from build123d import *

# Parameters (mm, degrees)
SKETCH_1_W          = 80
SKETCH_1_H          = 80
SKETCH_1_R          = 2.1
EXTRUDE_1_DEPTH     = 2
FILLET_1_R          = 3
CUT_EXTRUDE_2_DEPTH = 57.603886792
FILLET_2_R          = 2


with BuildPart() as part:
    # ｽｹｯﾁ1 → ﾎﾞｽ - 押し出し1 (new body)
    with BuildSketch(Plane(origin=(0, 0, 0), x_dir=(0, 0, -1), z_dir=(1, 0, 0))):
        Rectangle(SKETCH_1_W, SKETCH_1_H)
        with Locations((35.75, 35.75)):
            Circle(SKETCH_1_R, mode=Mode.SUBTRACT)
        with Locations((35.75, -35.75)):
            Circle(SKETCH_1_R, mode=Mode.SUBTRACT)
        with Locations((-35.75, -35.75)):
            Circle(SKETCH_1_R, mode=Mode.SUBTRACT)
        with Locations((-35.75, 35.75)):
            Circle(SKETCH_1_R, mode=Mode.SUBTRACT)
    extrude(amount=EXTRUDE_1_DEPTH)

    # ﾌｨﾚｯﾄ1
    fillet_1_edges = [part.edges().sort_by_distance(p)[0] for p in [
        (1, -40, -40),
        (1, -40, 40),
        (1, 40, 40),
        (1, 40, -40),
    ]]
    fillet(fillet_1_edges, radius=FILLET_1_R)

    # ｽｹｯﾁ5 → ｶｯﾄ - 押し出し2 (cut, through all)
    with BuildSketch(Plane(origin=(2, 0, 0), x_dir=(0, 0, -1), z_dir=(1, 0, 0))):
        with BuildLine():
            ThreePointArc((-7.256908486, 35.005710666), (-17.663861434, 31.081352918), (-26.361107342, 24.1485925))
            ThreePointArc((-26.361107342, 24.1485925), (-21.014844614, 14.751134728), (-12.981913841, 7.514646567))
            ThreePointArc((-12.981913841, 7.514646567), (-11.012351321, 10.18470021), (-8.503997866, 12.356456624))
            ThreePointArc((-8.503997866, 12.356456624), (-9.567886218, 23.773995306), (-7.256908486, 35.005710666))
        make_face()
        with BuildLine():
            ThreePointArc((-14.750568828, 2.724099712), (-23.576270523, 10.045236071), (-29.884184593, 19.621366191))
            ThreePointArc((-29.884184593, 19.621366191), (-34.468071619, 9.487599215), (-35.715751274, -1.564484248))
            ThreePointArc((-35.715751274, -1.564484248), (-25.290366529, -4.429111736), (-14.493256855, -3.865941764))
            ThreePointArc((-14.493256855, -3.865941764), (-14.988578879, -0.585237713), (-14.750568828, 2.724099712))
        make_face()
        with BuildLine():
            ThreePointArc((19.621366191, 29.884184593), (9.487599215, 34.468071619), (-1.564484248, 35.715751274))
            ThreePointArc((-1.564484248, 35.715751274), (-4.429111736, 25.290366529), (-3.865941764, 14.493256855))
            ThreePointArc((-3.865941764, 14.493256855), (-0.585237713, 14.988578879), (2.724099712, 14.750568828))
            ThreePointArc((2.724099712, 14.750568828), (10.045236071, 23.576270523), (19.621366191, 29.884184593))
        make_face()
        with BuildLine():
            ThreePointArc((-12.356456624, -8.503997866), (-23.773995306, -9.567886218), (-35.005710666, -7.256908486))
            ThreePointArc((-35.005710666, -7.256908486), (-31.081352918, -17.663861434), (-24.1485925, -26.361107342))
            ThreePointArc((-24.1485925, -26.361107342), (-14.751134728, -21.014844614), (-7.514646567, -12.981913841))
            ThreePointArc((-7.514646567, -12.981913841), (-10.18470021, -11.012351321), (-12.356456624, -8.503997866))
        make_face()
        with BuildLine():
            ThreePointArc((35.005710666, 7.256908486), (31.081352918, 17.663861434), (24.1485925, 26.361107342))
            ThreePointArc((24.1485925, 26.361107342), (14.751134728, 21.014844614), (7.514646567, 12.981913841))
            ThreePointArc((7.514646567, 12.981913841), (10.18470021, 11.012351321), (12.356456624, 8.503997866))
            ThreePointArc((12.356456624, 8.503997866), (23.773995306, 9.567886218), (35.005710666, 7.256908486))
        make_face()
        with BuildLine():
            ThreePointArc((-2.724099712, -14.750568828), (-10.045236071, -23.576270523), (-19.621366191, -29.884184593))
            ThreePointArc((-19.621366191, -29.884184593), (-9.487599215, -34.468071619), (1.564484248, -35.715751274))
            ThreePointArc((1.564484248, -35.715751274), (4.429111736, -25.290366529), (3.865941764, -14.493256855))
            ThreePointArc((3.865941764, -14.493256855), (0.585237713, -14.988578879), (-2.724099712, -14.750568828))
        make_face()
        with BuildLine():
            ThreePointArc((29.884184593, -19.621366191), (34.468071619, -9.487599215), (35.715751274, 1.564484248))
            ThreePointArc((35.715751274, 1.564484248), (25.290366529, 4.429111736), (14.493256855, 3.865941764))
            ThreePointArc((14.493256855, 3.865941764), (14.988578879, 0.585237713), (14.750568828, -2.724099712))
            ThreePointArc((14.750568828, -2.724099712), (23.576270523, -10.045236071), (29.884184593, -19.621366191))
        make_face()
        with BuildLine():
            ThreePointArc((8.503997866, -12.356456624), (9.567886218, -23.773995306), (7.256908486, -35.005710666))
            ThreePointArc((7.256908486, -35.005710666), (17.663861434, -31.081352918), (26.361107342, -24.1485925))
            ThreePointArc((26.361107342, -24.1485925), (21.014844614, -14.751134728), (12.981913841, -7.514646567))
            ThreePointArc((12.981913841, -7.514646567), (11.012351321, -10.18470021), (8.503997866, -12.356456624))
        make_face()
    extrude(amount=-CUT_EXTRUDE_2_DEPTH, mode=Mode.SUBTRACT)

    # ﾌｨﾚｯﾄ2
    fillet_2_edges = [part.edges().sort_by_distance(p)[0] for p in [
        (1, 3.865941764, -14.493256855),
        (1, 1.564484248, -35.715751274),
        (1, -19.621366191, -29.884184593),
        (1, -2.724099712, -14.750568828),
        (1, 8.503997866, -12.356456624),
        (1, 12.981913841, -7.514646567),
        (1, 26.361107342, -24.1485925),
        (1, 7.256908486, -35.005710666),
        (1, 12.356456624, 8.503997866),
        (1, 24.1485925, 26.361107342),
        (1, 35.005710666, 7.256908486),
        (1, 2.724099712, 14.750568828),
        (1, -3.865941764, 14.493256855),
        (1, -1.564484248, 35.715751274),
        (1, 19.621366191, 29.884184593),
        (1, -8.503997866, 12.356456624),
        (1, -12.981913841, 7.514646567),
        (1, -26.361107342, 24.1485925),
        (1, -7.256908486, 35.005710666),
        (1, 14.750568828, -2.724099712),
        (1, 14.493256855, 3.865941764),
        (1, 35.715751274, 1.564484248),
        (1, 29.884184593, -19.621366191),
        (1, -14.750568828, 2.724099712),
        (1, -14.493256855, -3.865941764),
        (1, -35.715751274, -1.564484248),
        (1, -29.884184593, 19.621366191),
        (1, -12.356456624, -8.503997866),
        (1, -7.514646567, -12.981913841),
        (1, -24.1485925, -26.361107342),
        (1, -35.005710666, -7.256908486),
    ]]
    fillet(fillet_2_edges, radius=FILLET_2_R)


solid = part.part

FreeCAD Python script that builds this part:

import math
import FreeCAD as App
import Part
import Sketcher
Q = App.Units.Quantity


def edges_at(feature, points):
    """Names of the edges that pass closest to the given points."""
    edges = feature.Shape.Edges
    near = lambda p: min(range(len(edges)), key=lambda i: edges[i].distToShape(Part.Vertex(*p))[0])
    return sorted({f"Edge{near(p) + 1}" for p in points})

doc = App.newDocument("Part")
body = doc.addObject("PartDesign::Body", "Body")

sketch1 = body.newObject("Sketcher::SketchObject", "Sketch")
sketch1.AttachmentSupport = (doc.getObject("YZ_Plane"), [""])
sketch1.MapMode = "FlatFace"
sketch1.addGeometry([
    Part.LineSegment(App.Vector(40, 40, 0), App.Vector(-40, 40, 0)),
    Part.LineSegment(App.Vector(-40, 40, 0), App.Vector(-40, -40, 0)),
    Part.LineSegment(App.Vector(-40, -40, 0), App.Vector(40, -40, 0)),
    Part.LineSegment(App.Vector(40, -40, 0), App.Vector(40, 40, 0)),
    Part.Circle(App.Vector(-35.75, 35.75, 0), App.Vector(0, 0, 1), 2.1),
    Part.Circle(App.Vector(-35.75, -35.75, 0), App.Vector(0, 0, 1), 2.1),
    Part.Circle(App.Vector(35.75, 35.75, 0), App.Vector(0, 0, 1), 2.1),
    Part.Circle(App.Vector(35.75, -35.75, 0), App.Vector(0, 0, 1), 2.1),
], False)
sketch1.addConstraint([
    Sketcher.Constraint("Coincident", 0, 2, 1, 1),
    Sketcher.Constraint("Coincident", 1, 2, 2, 1),
    Sketcher.Constraint("Coincident", 2, 2, 3, 1),
    Sketcher.Constraint("Coincident", 3, 2, 0, 1),
    Sketcher.Constraint("Horizontal", 0),
    Sketcher.Constraint("Vertical", 1),
    Sketcher.Constraint("Horizontal", 2),
    Sketcher.Constraint("Vertical", 3),
    Sketcher.Constraint("Equal", 4, 5),
    Sketcher.Constraint("Equal", 5, 6),
    Sketcher.Constraint("Equal", 6, 7),
    Sketcher.Constraint("Symmetric", 5, 3, 6, 3, -1, 1),
    Sketcher.Constraint("Symmetric", 4, 3, 7, 3, -1, 1),
    Sketcher.Constraint("Symmetric", 0, 2, 2, 2, -1, 1),
    Sketcher.Constraint("Symmetric", 4, 3, 6, 3, -2),
    Sketcher.Constraint("Equal", 2, 1),
    Sketcher.Constraint("Diameter", 4, Q("4.2 mm")),
    Sketcher.Constraint("DistanceX", 0, 2, 0, 1, Q("80 mm")),
    Sketcher.Constraint("DistanceY", 5, 3, 4, 3, Q("71.5 mm")),
    Sketcher.Constraint("DistanceX", 4, 3, 6, 3, Q("71.5 mm")),
])
pad1 = body.newObject("PartDesign::Pad", "Pad")
pad1.Profile = sketch1
pad1.Length = 2
doc.recompute()

fillet = body.newObject("PartDesign::Fillet", "Fillet")
fillet.Base = (pad1, edges_at(pad1, [
    (1, -40, -40),
    (1, -40, 40),
    (1, 40, 40),
    (1, 40, -40),
]))
fillet.Radius = 3

sketch2 = body.newObject("Sketcher::SketchObject", "Sketch001")
sketch2.AttachmentSupport = (doc.getObject("YZ_Plane"), [""])
sketch2.MapMode = "FlatFace"
sketch2.AttachmentOffset = App.Placement(App.Vector(0, 0, 2), App.Rotation())
sketch2.addGeometry([
    Part.ArcOfCircle(Part.Circle(App.Vector(0, 0, 0), App.Vector(0, 0, 1), 35.75), math.radians(11.711887), math.radians(47.508167)),
    Part.ArcOfCircle(Part.Circle(App.Vector(36, -5.403226, 0), App.Vector(0, 0, 1), 33.903226), math.radians(110.460758), math.radians(147.160819)),
    Part.ArcOfCircle(Part.Circle(App.Vector(0, 0, 0), App.Vector(0, 0, 1), 15), math.radians(34.536644), math.radians(59.935378)),
    Part.ArcOfCircle(Part.Circle(App.Vector(21.635187, -29.276502, 0), App.Vector(0, 0, 1), 38.903226), math.radians(69.898348), math.radians(103.798497)),
    Part.ArcOfCircle(Part.Circle(App.Vector(36, -5.403226, 0), App.Vector(0, 0, 1), 38.903226), math.radians(114.898348), math.radians(148.798497)),
    Part.ArcOfCircle(Part.Circle(App.Vector(0, 0, 0), App.Vector(0, 0, 1), 35.75), math.radians(56.711887), math.radians(92.508167)),
    Part.ArcOfCircle(Part.Circle(App.Vector(29.276502, 21.635187, 0), App.Vector(0, 0, 1), 33.903226), math.radians(155.460758), math.radians(192.160819)),
    Part.ArcOfCircle(Part.Circle(App.Vector(0, 0, 0), App.Vector(0, 0, 1), 15), math.radians(79.536644), math.radians(104.935378)),
    Part.ArcOfCircle(Part.Circle(App.Vector(0, 0, 0), App.Vector(0, 0, 1), 35.75), math.radians(-33.288113), math.radians(2.508167)),
    Part.ArcOfCircle(Part.Circle(App.Vector(21.635187, -29.276502, 0), App.Vector(0, 0, 1), 33.903226), math.radians(65.460758), math.radians(102.160819)),
    Part.ArcOfCircle(Part.Circle(App.Vector(0, 0, 0), App.Vector(0, 0, 1), 15), math.radians(-10.463356), math.radians(14.935378)),
    Part.ArcOfCircle(Part.Circle(App.Vector(-5.403226, -36, 0), App.Vector(0, 0, 1), 38.903226), math.radians(24.898348), math.radians(58.798497)),
    Part.ArcOfCircle(Part.Circle(App.Vector(29.276502, 21.635187, 0), App.Vector(0, 0, 1), 38.903226), math.radians(159.898348), math.radians(193.798497)),
    Part.ArcOfCircle(Part.Circle(App.Vector(0, 0, 0), App.Vector(0, 0, 1), 35.75), math.radians(101.711887), math.radians(137.508167)),
    Part.ArcOfCircle(Part.Circle(App.Vector(5.403226, 36, 0), App.Vector(0, 0, 1), 33.903226), math.radians(-159.539242), math.radians(-122.839181)),
    Part.ArcOfCircle(Part.Circle(App.Vector(0, 0, 0), App.Vector(0, 0, 1), 15), math.radians(124.536644), math.radians(149.935378)),
    Part.ArcOfCircle(Part.Circle(App.Vector(0, 0, 0), App.Vector(0, 0, 1), 35.75), math.radians(-78.288113), math.radians(-42.491833)),
    Part.ArcOfCircle(Part.Circle(App.Vector(-5.403226, -36, 0), App.Vector(0, 0, 1), 33.903226), math.radians(20.460758), math.radians(57.160819)),
    Part.ArcOfCircle(Part.Circle(App.Vector(0, 0, 0), App.Vector(0, 0, 1), 15), math.radians(-55.463356), math.radians(-30.064622)),
    Part.ArcOfCircle(Part.Circle(App.Vector(-29.276502, -21.635187, 0), App.Vector(0, 0, 1), 38.903226), math.radians(-20.101652), math.radians(13.798497)),
    Part.ArcOfCircle(Part.Circle(App.Vector(5.403226, 36, 0), App.Vector(0, 0, 1), 38.903226), math.radians(-155.101652), math.radians(-121.201503)),
    Part.ArcOfCircle(Part.Circle(App.Vector(0, 0, 0), App.Vector(0, 0, 1), 35.75), math.radians(146.711887), math.radians(182.508167)),
    Part.ArcOfCircle(Part.Circle(App.Vector(-21.635187, 29.276502, 0), App.Vector(0, 0, 1), 33.903226), math.radians(-114.539242), math.radians(-77.839181)),
    Part.ArcOfCircle(Part.Circle(App.Vector(0, 0, 0), App.Vector(0, 0, 1), 15), math.radians(169.536644), math.radians(194.935378)),
    Part.ArcOfCircle(Part.Circle(App.Vector(0, 0, 0), App.Vector(0, 0, 1), 35.75), math.radians(-123.288113), math.radians(-87.491833)),
    Part.ArcOfCircle(Part.Circle(App.Vector(-29.276502, -21.635187, 0), App.Vector(0, 0, 1), 33.903226), math.radians(-24.539242), math.radians(12.160819)),
    Part.ArcOfCircle(Part.Circle(App.Vector(0, 0, 0), App.Vector(0, 0, 1), 15), math.radians(-100.463356), math.radians(-75.064622)),
    Part.ArcOfCircle(Part.Circle(App.Vector(-36, 5.403226, 0), App.Vector(0, 0, 1), 38.903226), math.radians(-65.101652), math.radians(-31.201503)),
    Part.ArcOfCircle(Part.Circle(App.Vector(-21.635187, 29.276502, 0), App.Vector(0, 0, 1), 38.903226), math.radians(-110.101652), math.radians(-76.201503)),
    Part.ArcOfCircle(Part.Circle(App.Vector(0, 0, 0), App.Vector(0, 0, 1), 35.75), math.radians(-168.288113), math.radians(-132.491833)),
    Part.ArcOfCircle(Part.Circle(App.Vector(-36, 5.403226, 0), App.Vector(0, 0, 1), 33.903226), math.radians(-69.539242), math.radians(-32.839181)),
    Part.ArcOfCircle(Part.Circle(App.Vector(0, 0, 0), App.Vector(0, 0, 1), 15), math.radians(-145.463356), math.radians(-120.064622)),
], False)
sketch2.addConstraint([
    Sketcher.Constraint("Coincident", 0, 2, 1, 1),
    Sketcher.Constraint("Coincident", 1, 2, 2, 2),
    Sketcher.Constraint("Coincident", 2, 1, 3, 2),
    Sketcher.Constraint("Coincident", 3, 1, 0, 1),
    Sketcher.Constraint("Coincident", 4, 1, 5, 1),
    Sketcher.Constraint("Coincident", 5, 2, 6, 1),
    Sketcher.Constraint("Coincident", 6, 2, 7, 2),
    Sketcher.Constraint("Coincident", 7, 1, 4, 2),
    Sketcher.Constraint("Coincident", 8, 2, 9, 1),
    Sketcher.Constraint("Coincident", 9, 2, 10, 2),
    Sketcher.Constraint("Coincident", 10, 1, 11, 2),
    Sketcher.Constraint("Coincident", 11, 1, 8, 1),
    Sketcher.Constraint("Coincident", 12, 1, 13, 1),
    Sketcher.Constraint("Coincident", 13, 2, 14, 1),
    Sketcher.Constraint("Coincident", 14, 2, 15, 2),
    Sketcher.Constraint("Coincident", 15, 1, 12, 2),
    Sketcher.Constraint("Coincident", 16, 2, 17, 1),
    Sketcher.Constraint("Coincident", 17, 2, 18, 2),
    Sketcher.Constraint("Coincident", 18, 1, 19, 2),
    Sketcher.Constraint("Coincident", 19, 1, 16, 1),
    Sketcher.Constraint("Coincident", 20, 1, 21, 1),
    Sketcher.Constraint("Coincident", 21, 2, 22, 1),
    Sketcher.Constraint("Coincident", 22, 2, 23, 2),
    Sketcher.Constraint("Coincident", 23, 1, 20, 2),
    Sketcher.Constraint("Coincident", 24, 2, 25, 1),
    Sketcher.Constraint("Coincident", 25, 2, 26, 2),
    Sketcher.Constraint("Coincident", 26, 1, 27, 2),
    Sketcher.Constraint("Coincident", 27, 1, 24, 1),
    Sketcher.Constraint("Coincident", 28, 1, 29, 1),
    Sketcher.Constraint("Coincident", 29, 2, 30, 1),
    Sketcher.Constraint("Coincident", 30, 2, 31, 2),
    Sketcher.Constraint("Coincident", 31, 1, 28, 2),
    Sketcher.Constraint("Coincident", 0, 3, -1, 1),
    Sketcher.Constraint("Coincident", 2, 3, -1, 1),
    Sketcher.Constraint("Coincident", 5, 3, -1, 1),
    Sketcher.Constraint("Coincident", 7, 3, -1, 1),
    Sketcher.Constraint("Coincident", 8, 3, -1, 1),
    Sketcher.Constraint("Coincident", 10, 3, -1, 1),
    Sketcher.Constraint("Coincident", 13, 3, -1, 1),
    Sketcher.Constraint("Coincident", 15, 3, -1, 1),
    Sketcher.Constraint("Coincident", 16, 3, -1, 1),
    Sketcher.Constraint("Coincident", 18, 3, -1, 1),
    Sketcher.Constraint("Coincident", 21, 3, -1, 1),
    Sketcher.Constraint("Coincident", 23, 3, -1, 1),
    Sketcher.Constraint("Coincident", 24, 3, -1, 1),
    Sketcher.Constraint("Coincident", 26, 3, -1, 1),
    Sketcher.Constraint("Coincident", 29, 3, -1, 1),
    Sketcher.Constraint("Coincident", 31, 3, -1, 1),
    Sketcher.Constraint("Coincident", 4, 3, 1, 3),
    Sketcher.Constraint("Coincident", 9, 3, 3, 3),
    Sketcher.Constraint("Coincident", 12, 3, 6, 3),
    Sketcher.Constraint("Coincident", 17, 3, 11, 3),
    Sketcher.Constraint("Coincident", 20, 3, 14, 3),
    Sketcher.Constraint("Coincident", 25, 3, 19, 3),
    Sketcher.Constraint("Coincident", 28, 3, 22, 3),
    Sketcher.Constraint("Coincident", 30, 3, 27, 3),
    Sketcher.Constraint("Equal", 3, 4),
    Sketcher.Constraint("Equal", 0, 5),
    Sketcher.Constraint("Equal", 1, 6),
    Sketcher.Constraint("Equal", 2, 7),
    Sketcher.Constraint("Equal", 5, 8),
    Sketcher.Constraint("Equal", 6, 9),
    Sketcher.Constraint("Equal", 7, 10),
    Sketcher.Constraint("Equal", 4, 11),
    Sketcher.Constraint("Equal", 11, 12),
    Sketcher.Constraint("Equal", 8, 13),
    Sketcher.Constraint("Equal", 9, 14),
    Sketcher.Constraint("Equal", 10, 15),
    Sketcher.Constraint("Equal", 13, 16),
    Sketcher.Constraint("Equal", 14, 17),
    Sketcher.Constraint("Equal", 15, 18),
    Sketcher.Constraint("Equal", 12, 19),
    Sketcher.Constraint("Equal", 19, 20),
    Sketcher.Constraint("Equal", 16, 21),
    Sketcher.Constraint("Equal", 17, 22),
    Sketcher.Constraint("Equal", 18, 23),
    Sketcher.Constraint("Equal", 21, 24),
    Sketcher.Constraint("Equal", 22, 25),
    Sketcher.Constraint("Equal", 23, 26),
    Sketcher.Constraint("Equal", 20, 27),
    Sketcher.Constraint("Equal", 27, 28),
    Sketcher.Constraint("Equal", 24, 29),
    Sketcher.Constraint("Equal", 25, 30),
    Sketcher.Constraint("Equal", 26, 31),
    Sketcher.Constraint("Symmetric", 11, 3, 14, 3, -1, 1),
    Sketcher.Constraint("Symmetric", 6, 3, 19, 3, -1, 1),
    Sketcher.Constraint("Symmetric", 3, 3, 22, 3, -1, 1),
    Sketcher.Constraint("Symmetric", 1, 3, 27, 3, -1, 1),
    Sketcher.Constraint("Radius", 2, Q("15 mm")),
    Sketcher.Constraint("Radius", 0, Q("35.75 mm")),
    Sketcher.Constraint("DistanceX", -1, 1, 1, 3, Q("36 mm")),
    Sketcher.Constraint("DistanceY", 11, 3, -1, 1, Q("36 mm")),
    Sketcher.Constraint("Radius", 1, Q("33.903226 mm")),
    Sketcher.Constraint("Radius", 3, Q("38.903226 mm")),
    Sketcher.Constraint("DistanceY", 3, 3, -1, 1, Q("29.276502 mm")),
    Sketcher.Constraint("DistanceX", -1, 1, 6, 3, Q("29.276502 mm")),
    Sketcher.Constraint("DistanceX", -1, 1, 7, 1, Q("2.7241 mm")),
    Sketcher.Constraint("DistanceY", 10, 1, -1, 1, Q("2.7241 mm")),
    Sketcher.Constraint("DistanceY", -1, 1, 3, 1, Q("7.256908 mm")),
    Sketcher.Constraint("DistanceY", -1, 1, 5, 2, Q("35.715751 mm")),
])
pocket1 = body.newObject("PartDesign::Pocket", "Pocket")
pocket1.Profile = sketch2
pocket1.Type = "ThroughAll"
doc.recompute()

fillet2 = body.newObject("PartDesign::Fillet", "Fillet001")
fillet2.Base = (pocket1, edges_at(pocket1, [
    (1, 3.866, -14.493),
    (1, 1.564, -35.716),
    (1, -19.621, -29.884),
    (1, -2.724, -14.751),
    (1, 8.504, -12.356),
    (1, 12.982, -7.515),
    (1, 26.361, -24.149),
    (1, 7.257, -35.006),
    (1, 12.356, 8.504),
    (1, 24.149, 26.361),
    (1, 35.006, 7.257),
    (1, 2.724, 14.751),
    (1, -3.866, 14.493),
    (1, -1.564, 35.716),
    (1, 19.621, 29.884),
    (1, -8.504, 12.356),
    (1, -12.982, 7.515),
    (1, -26.361, 24.149),
    (1, -7.257, 35.006),
    (1, 14.751, -2.724),
    (1, 14.493, 3.866),
    (1, 35.716, 1.564),
    (1, 29.884, -19.621),
    (1, -14.751, 2.724),
    (1, -14.493, -3.866),
    (1, -35.716, -1.564),
    (1, -29.884, 19.621),
    (1, -12.356, -8.504),
    (1, -7.515, -12.982),
    (1, -24.149, -26.361),
    (1, -35.006, -7.257),
]))
fillet2.Radius = 2

doc.recompute()
